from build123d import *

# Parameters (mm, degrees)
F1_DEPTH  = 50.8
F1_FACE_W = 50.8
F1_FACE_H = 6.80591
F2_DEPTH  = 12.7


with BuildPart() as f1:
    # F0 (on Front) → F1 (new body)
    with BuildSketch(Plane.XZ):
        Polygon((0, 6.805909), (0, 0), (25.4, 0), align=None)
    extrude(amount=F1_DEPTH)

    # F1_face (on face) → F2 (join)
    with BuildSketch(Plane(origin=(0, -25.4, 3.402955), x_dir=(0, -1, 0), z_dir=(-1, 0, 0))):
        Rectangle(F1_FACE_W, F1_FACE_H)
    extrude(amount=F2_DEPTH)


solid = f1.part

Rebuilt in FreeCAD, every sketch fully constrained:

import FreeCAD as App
import Part
import Sketcher
Q = App.Units.Quantity

doc = App.newDocument("Part")
body = doc.addObject("PartDesign::Body", "Body")

sketch1 = body.newObject("Sketcher::SketchObject", "Sketch")
sketch1.AttachmentSupport = (doc.getObject("XZ_Plane"), [""])
sketch1.MapMode = "FlatFace"
sketch1.addGeometry(Part.LineSegment(App.Vector(0, 7, 0), App.Vector(0, 0, 0)), False)
sketch1.addGeometry(Part.LineSegment(App.Vector(0, 0, 0), App.Vector(25, 0, 0)), False)
sketch1.addGeometry(Part.LineSegment(App.Vector(25, 0, 0), App.Vector(0, 7, 0)), False)
sketch1.addConstraint(Sketcher.Constraint("Coincident", 0, 2, 1, 1))
sketch1.addConstraint(Sketcher.Constraint("Coincident", 1, 2, 2, 1))
sketch1.addConstraint(Sketcher.Constraint("Coincident", 2, 2, 0, 1))
sketch1.addConstraint(Sketcher.Constraint("Vertical", 0))
sketch1.addConstraint(Sketcher.Constraint("Horizontal", 1))
sketch1.addConstraint(Sketcher.Constraint("Coincident", 0, 2, -1, 1))
sketch1.addConstraint(Sketcher.Constraint("DistanceX", 1, 1, 1, 2, Q("1 in")))
sketch1.addConstraint(Sketcher.Constraint("Angle", 2, Q("165.000001 deg")))
pad1 = body.newObject("PartDesign::Pad", "Pad")
pad1.Profile = sketch1
pad1.Length = Q("2 in")

sketch2 = body.newObject("Sketcher::SketchObject", "Sketch001")
sketch2.AttachmentSupport = (doc.getObject("YZ_Plane"), [""])
sketch2.MapMode = "FlatFace"
sketch2.addGeometry(Part.LineSegment(App.Vector(0, 7, 0), App.Vector(0, 0, 0)), False)
sketch2.addGeometry(Part.LineSegment(App.Vector(0, 0, 0), App.Vector(-51, 0, 0)), False)
sketch2.addGeometry(Part.LineSegment(App.Vector(-51, 0, 0), App.Vector(-51, 7, 0)), False)
sketch2.addGeometry(Part.LineSegment(App.Vector(-51, 7, 0), App.Vector(0, 7, 0)), False)
sketch2.addConstraint(Sketcher.Constraint("Coincident", 0, 2, 1, 1))
sketch2.addConstraint(Sketcher.Constraint("Coincident", 1, 2, 2, 1))
sketch2.addConstraint(Sketcher.Constraint("Coincident", 2, 2, 3, 1))
sketch2.addConstraint(Sketcher.Constraint("Coincident", 3, 2, 0, 1))
sketch2.addConstraint(Sketcher.Constraint("Vertical", 0))
sketch2.addConstraint(Sketcher.Constraint("Horizontal", 1))
sketch2.addConstraint(Sketcher.Constraint("Vertical", 2))
sketch2.addConstraint(Sketcher.Constraint("Horizontal", 3))
sketch2.addConstraint(Sketcher.Constraint("Coincident", 0, 2, -1, 1))
sketch2.addConstraint(Sketcher.Constraint("DistanceX", 1, 2, 1, 1, Q("2 in")))
sketch2.addConstraint(Sketcher.Constraint("DistanceY", 0, 2, 0, 1, 6.80591))
pad2 = body.newObject("PartDesign::Pad", "Pad001")
pad2.Profile = sketch2
pad2.Length = Q("0.5 in")
pad2.Reversed = True

doc.recompute()
